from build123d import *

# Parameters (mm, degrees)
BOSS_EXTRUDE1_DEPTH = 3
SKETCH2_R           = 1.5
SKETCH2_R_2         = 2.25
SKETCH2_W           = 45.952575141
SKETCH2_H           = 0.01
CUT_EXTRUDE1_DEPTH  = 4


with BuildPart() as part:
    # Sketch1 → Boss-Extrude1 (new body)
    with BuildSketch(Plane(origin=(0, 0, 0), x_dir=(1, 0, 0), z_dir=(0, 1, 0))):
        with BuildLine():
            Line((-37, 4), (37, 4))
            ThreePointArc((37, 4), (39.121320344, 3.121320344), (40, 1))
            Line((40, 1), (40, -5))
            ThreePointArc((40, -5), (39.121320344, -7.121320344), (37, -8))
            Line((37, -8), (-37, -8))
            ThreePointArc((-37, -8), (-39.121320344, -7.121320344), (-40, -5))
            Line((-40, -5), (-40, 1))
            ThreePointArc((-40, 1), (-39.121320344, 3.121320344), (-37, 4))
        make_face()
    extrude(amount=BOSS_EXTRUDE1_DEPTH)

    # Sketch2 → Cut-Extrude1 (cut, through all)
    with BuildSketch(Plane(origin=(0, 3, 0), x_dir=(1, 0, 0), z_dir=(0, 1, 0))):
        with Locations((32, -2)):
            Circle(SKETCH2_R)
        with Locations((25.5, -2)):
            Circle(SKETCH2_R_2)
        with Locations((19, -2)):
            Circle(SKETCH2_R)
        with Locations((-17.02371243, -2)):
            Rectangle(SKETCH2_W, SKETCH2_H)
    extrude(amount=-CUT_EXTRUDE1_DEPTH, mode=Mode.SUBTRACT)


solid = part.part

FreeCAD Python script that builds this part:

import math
import FreeCAD as App
import Part
import Sketcher

V = App.Vector


def add_polygon(sketch, points):
    """Adds a closed chain of lines whose ends are joined by coincident constraints."""
    first, n = sketch.GeometryCount, len(points)
    for a, b in zip(points, points[1:] + points[:1]):
        sketch.addGeometry(Part.LineSegment(App.Vector(*a, 0), App.Vector(*b, 0)), False)
    for i in range(n):
        sketch.addConstraint(Sketcher.Constraint("Coincident", first + i, 2, first + (i + 1) % n, 1))

doc = App.newDocument("Part")
body = doc.addObject("PartDesign::Body", "Body")

sketch1 = body.newObject("Sketcher::SketchObject", "Sketch")
sketch1.AttachmentSupport = (doc.getObject("XZ_Plane"), [""])
sketch1.MapMode = "FlatFace"
sketch1.addGeometry([
    Part.LineSegment(V(37, -4, 0), V(-37, -4, 0)),
    Part.ArcOfCircle(Part.Circle(V(-37, -1, 0), V(0, 0, 1), 3), math.radians(180), math.radians(270)),
    Part.LineSegment(V(-40, -1, 0), V(-40, 5, 0)),
    Part.ArcOfCircle(Part.Circle(V(-37, 5, 0), V(0, 0, 1), 3), math.radians(90), math.radians(180)),
    Part.LineSegment(V(-37, 8, 0), V(37, 8, 0)),
    Part.ArcOfCircle(Part.Circle(V(37, 5, 0), V(0, 0, 1), 3), math.radians(0), math.radians(90)),
    Part.LineSegment(V(40, 5, 0), V(40, -1, 0)),
    Part.ArcOfCircle(Part.Circle(V(37, -1, 0), V(0, 0, 1), 3), math.radians(-90), math.radians(0)),
], False)
sketch1.addConstraint([
    Sketcher.Constraint("Tangent", 0, 2, 1, 2),
    Sketcher.Constraint("Tangent", 1, 1, 2, 1),
    Sketcher.Constraint("Tangent", 2, 2, 3, 2),
    Sketcher.Constraint("Tangent", 3, 1, 4, 1),
    Sketcher.Constraint("Tangent", 4, 2, 5, 2),
    Sketcher.Constraint("Tangent", 5, 1, 6, 1),
    Sketcher.Constraint("Tangent", 6, 2, 7, 2),
    Sketcher.Constraint("Tangent", 7, 1, 0, 1),
    Sketcher.Constraint("Horizontal", 0),
    Sketcher.Constraint("Vertical", 2),
    Sketcher.Constraint("Horizontal", 4),
    Sketcher.Constraint("Vertical", 6),
    Sketcher.Constraint("Equal", 1, 3),
    Sketcher.Constraint("Equal", 3, 5),
    Sketcher.Constraint("Equal", 5, 7),
    Sketcher.Constraint("Radius", 1, 3.0),
    Sketcher.Constraint("DistanceX", 0, 2, 0, 1, 74.0),
    Sketcher.Constraint("DistanceY", 2, 1, 2, 2, 6.0),
    Sketcher.Constraint("DistanceX", 1, 3, -1, 1, 37.0),
    Sketcher.Constraint("DistanceY", 1, 3, -1, 1, 1.0),
])
pad1 = body.newObject("PartDesign::Pad", "Pad")
pad1.Profile = sketch1
pad1.Length = 3
pad1.Reversed = True

sketch2 = body.newObject("Sketcher::SketchObject", "Sketch001")
sketch2.AttachmentSupport = (doc.getObject("XZ_Plane"), [""])
sketch2.MapMode = "FlatFace"
sketch2.AttachmentOffset = App.Placement(V(0, 0, -3), App.Rotation())
sketch2.addGeometry(Part.Circle(V(32, 2, 0), V(0, 0, 1), 1.5), False)
sketch2.addGeometry(Part.Circle(V(25.5, 2, 0), V(0, 0, 1), 2.25), False)
sketch2.addGeometry(Part.Circle(V(19, 2, 0), V(0, 0, 1), 1.5), False)
add_polygon(sketch2, [(-40, 1.995), (-40, 2.005), (5.952575, 2.005), (5.952575, 1.995)])
sketch2.addConstraint([
    Sketcher.Constraint("Vertical", 3),
    Sketcher.Constraint("Horizontal", 4),
    Sketcher.Constraint("Vertical", 5),
    Sketcher.Constraint("Horizontal", 6),
    Sketcher.Constraint("Equal", 0, 2),
    Sketcher.Constraint("Horizontal", 0, 3, 1, 3),
    Sketcher.Constraint("Horizontal", 1, 3, 2, 3),
    Sketcher.Constraint("Diameter", 0, 3.0),
    Sketcher.Constraint("Diameter", 1, 4.5),
    Sketcher.Constraint("DistanceX", -1, 1, 0, 3, 32.0),
    Sketcher.Constraint("DistanceY", -1, 1, 0, 3, 2.0),
    Sketcher.Constraint("DistanceX", -1, 1, 2, 3, 19.0),
    Sketcher.Constraint("DistanceX", 3, 2, -1, 1, 40.0),
    Sketcher.Constraint("DistanceY", 3, 1, 3, 2, 0.01),
    Sketcher.Constraint("DistanceX", -1, 1, 1, 3, 25.5),
    Sketcher.Constraint("DistanceY", -1, 1, 3, 2, 2.005),
    Sketcher.Constraint("DistanceX", 4, 1, 4, 2, 45.952575),
])
pocket1 = body.newObject("PartDesign::Pocket", "Pocket")
pocket1.Profile = sketch2
pocket1.Type = "ThroughAll"
pocket1.Reversed = True

doc.recompute()
